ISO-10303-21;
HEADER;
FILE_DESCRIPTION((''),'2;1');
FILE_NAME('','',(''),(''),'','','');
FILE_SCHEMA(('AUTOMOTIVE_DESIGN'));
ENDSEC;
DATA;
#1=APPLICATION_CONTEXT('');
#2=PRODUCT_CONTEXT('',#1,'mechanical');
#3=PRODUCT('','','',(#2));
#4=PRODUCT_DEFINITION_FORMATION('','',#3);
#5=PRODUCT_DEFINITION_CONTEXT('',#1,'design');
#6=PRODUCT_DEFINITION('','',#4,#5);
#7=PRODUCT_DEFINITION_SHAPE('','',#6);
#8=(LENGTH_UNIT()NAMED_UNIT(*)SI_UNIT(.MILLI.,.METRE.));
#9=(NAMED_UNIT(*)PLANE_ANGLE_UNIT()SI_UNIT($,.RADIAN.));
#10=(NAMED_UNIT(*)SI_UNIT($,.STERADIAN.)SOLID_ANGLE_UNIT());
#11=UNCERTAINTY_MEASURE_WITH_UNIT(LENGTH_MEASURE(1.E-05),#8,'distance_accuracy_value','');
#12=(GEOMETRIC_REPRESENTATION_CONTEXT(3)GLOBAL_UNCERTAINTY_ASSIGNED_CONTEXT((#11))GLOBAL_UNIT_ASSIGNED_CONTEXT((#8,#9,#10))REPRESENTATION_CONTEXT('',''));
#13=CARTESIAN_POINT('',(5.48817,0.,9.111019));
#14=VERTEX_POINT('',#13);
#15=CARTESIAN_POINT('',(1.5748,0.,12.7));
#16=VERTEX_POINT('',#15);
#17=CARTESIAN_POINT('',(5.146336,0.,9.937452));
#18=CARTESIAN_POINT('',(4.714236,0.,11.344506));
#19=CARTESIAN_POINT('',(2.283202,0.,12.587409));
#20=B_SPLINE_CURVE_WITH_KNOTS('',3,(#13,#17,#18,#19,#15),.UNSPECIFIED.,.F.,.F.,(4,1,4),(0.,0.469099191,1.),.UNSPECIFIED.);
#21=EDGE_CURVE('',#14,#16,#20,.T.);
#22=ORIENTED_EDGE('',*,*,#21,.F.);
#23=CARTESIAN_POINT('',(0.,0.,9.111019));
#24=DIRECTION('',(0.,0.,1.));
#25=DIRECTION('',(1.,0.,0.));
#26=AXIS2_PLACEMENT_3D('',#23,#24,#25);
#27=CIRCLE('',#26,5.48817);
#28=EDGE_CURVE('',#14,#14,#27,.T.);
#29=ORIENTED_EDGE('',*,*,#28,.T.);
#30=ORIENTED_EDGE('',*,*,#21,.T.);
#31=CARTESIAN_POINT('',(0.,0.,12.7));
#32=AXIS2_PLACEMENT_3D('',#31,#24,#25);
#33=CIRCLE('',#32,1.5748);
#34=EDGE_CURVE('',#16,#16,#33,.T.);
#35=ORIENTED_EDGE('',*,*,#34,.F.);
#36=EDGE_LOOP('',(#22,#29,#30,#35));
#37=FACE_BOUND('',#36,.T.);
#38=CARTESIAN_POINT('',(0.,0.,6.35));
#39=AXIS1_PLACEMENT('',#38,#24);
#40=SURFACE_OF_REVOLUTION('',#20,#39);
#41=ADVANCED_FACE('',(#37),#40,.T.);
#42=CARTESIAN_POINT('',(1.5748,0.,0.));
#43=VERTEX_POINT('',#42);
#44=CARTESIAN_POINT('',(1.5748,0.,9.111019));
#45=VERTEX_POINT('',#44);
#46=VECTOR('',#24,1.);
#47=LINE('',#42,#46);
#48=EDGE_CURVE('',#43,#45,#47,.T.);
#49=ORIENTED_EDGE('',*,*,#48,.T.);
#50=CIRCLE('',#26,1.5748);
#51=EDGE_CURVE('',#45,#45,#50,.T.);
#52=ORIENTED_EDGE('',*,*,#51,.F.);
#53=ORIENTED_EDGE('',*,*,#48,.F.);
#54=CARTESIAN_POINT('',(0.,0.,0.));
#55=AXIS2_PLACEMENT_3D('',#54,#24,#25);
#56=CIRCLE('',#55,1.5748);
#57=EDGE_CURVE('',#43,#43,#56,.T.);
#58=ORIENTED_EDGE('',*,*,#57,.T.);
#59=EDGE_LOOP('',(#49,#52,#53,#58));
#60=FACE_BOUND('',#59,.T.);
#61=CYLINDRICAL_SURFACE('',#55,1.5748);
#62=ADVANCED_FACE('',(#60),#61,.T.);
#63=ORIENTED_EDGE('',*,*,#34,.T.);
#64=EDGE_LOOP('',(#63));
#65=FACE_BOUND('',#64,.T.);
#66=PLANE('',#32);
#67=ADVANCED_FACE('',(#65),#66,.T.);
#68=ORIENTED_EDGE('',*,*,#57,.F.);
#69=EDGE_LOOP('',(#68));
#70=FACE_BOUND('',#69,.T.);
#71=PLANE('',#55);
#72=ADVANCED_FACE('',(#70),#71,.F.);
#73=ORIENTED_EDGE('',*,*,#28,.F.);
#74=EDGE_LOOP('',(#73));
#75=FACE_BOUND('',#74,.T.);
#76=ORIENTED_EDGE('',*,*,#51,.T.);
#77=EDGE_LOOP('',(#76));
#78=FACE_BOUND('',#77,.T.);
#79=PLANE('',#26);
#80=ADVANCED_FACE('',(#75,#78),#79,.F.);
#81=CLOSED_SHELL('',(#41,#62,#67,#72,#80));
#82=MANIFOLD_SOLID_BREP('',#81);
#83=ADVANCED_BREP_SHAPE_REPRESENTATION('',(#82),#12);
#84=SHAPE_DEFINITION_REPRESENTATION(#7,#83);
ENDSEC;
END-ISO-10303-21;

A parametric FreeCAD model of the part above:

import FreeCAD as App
import Part
import Sketcher
from FreeCAD import Vector

doc = App.newDocument("Part")
body = doc.addObject("PartDesign::Body", "Body")

sketch1 = body.newObject("Sketcher::SketchObject", "Sketch")
sketch1.AttachmentSupport = (doc.getObject("XZ_Plane"), [""])
sketch1.MapMode = "FlatFace"
sketch1.addGeometry([
    Part.LineSegment(Vector(0, 12.7, 0), Vector(0, 0, 0)),
    Part.LineSegment(Vector(0, 0, 0), Vector(1.5748, 0, 0)),
    Part.LineSegment(Vector(1.5748, 0, 0), Vector(1.5748, 9.111019, 0)),
    Part.LineSegment(Vector(1.5748, 9.111019, 0), Vector(5.48817, 9.111019, 0)),
    Part.BSplineCurve([Vector(5.48817, 9.111019, 0), Vector(5.146336, 9.937452, 0), Vector(4.714236, 11.344506, 0), Vector(2.283202, 12.587409, 0), Vector(1.5748, 12.7, 0)], [4, 1, 4], [0, 0.469099191, 1], False, 3, [1, 1, 1, 1, 1], False),
    Part.LineSegment(Vector(1.5748, 12.7, 0), Vector(0, 12.7, 0)),
], False)
sketch1.addConstraint([
    Sketcher.Constraint("Block", 4),
    Sketcher.Constraint("Coincident", 0, 2, 1, 1),
    Sketcher.Constraint("Coincident", 1, 2, 2, 1),
    Sketcher.Constraint("Coincident", 2, 2, 3, 1),
    Sketcher.Constraint("Coincident", 3, 2, 4, 1),
    Sketcher.Constraint("Coincident", 4, 2, 5, 1),
    Sketcher.Constraint("Coincident", 5, 2, 0, 1),
    Sketcher.Constraint("Vertical", 0),
    Sketcher.Constraint("Horizontal", 1),
    Sketcher.Constraint("Vertical", 2),
    Sketcher.Constraint("Horizontal", 3),
    Sketcher.Constraint("Horizontal", 5),
    Sketcher.Constraint("Coincident", 0, 2, -1, 1),
    Sketcher.Constraint("Equal", 1, 5),
])
revolution = body.newObject("PartDesign::Revolution", "Revolution")
revolution.Profile = sketch1
revolution.ReferenceAxis = (sketch1, ["V_Axis"])
revolution.Angle = 360

doc.recompute()
